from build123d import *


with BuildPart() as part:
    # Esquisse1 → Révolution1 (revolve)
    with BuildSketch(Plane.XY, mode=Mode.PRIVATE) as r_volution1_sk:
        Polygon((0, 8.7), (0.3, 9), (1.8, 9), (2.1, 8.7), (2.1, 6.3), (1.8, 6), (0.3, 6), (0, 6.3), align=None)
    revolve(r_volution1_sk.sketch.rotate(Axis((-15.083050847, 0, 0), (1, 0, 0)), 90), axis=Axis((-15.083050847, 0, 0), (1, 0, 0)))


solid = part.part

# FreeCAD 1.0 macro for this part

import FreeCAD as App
import Part
import Sketcher
from FreeCAD import Vector
Q = App.Units.Quantity


def add_polygon(sketch, points):
    """Adds a closed chain of lines whose ends are joined by coincident constraints."""
    first, n = sketch.GeometryCount, len(points)
    for a, b in zip(points, points[1:] + points[:1]):
        sketch.addGeometry(Part.LineSegment(App.Vector(*a, 0), App.Vector(*b, 0)), False)
    for i in range(n):
        sketch.addConstraint(Sketcher.Constraint("Coincident", first + i, 2, first + (i + 1) % n, 1))

doc = App.newDocument("Part")
body = doc.addObject("PartDesign::Body", "Body")

# Sketch on XY plane
sketch1 = body.newObject("Sketcher::SketchObject", "Sketch")
sketch1.AttachmentSupport = (doc.getObject("XY_Plane"), [""])
sketch1.MapMode = "FlatFace"
add_polygon(sketch1, [(0.3, 9), (0, 8.7), (0, 6.3), (0.3, 6), (1.8, 6), (2.1, 6.3), (2.1, 8.7), (1.8, 9)])  # lines 0-7
sketch1.addConstraint([
    Sketcher.Constraint("Vertical", 1),
    Sketcher.Constraint("Horizontal", 3),
    Sketcher.Constraint("Vertical", 5),
    Sketcher.Constraint("Horizontal", 7),
    Sketcher.Constraint("PointOnObject", 0, 2, -2),
    Sketcher.Constraint("Perpendicular", 0, 2),
    Sketcher.Constraint("Perpendicular", 2, 4),
    Sketcher.Constraint("Perpendicular", 4, 6),
    Sketcher.Constraint("Horizontal", 1, 2, 4, 2),
    Sketcher.Constraint("Horizontal", 0, 2, 5, 2),
    Sketcher.Constraint("Vertical", 3, 2, 6, 2),
    Sketcher.Constraint("Vertical", 2, 2, 7, 2),
    Sketcher.Constraint("DistanceX", 3, 1, 3, 2, Q("1.5 mm")),
    Sketcher.Constraint("DistanceY", 1, 2, 1, 1, Q("2.4 mm")),
    Sketcher.Constraint("DistanceY", -1, 1, 2, 2, Q("6 mm")),
    Sketcher.Constraint("DistanceY", -1, 1, 6, 2, Q("9 mm")),
])
revolution = body.newObject("PartDesign::Revolution", "Revolution")
revolution.Profile = sketch1
revolution.ReferenceAxis = (sketch1, ["H_Axis"])
revolution.Angle = 360

doc.recompute()
